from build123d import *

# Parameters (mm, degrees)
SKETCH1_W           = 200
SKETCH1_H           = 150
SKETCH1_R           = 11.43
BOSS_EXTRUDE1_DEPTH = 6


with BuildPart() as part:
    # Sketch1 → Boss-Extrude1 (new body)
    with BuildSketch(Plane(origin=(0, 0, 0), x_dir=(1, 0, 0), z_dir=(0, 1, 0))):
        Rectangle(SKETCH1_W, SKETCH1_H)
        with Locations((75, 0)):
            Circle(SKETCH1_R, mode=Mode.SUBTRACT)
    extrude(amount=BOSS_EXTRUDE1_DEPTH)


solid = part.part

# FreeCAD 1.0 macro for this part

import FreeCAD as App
import Part
import Sketcher

V = App.Vector
Q = App.Units.Quantity


def add_polygon(sketch, points):
    """Adds a closed chain of lines whose ends are joined by coincident constraints."""
    first, n = sketch.GeometryCount, len(points)
    for a, b in zip(points, points[1:] + points[:1]):
        sketch.addGeometry(Part.LineSegment(App.Vector(*a, 0), App.Vector(*b, 0)), False)
    for i in range(n):
        sketch.addConstraint(Sketcher.Constraint("Coincident", first + i, 2, first + (i + 1) % n, 1))

doc = App.newDocument("Part")
body = doc.addObject("PartDesign::Body", "Body")

# Sketch on XZ plane
sketch1 = body.newObject("Sketcher::SketchObject", "Sketch")
sketch1.AttachmentSupport = (doc.getObject("XZ_Plane"), [""])
sketch1.MapMode = "FlatFace"
add_polygon(sketch1, [(-100, -75), (-100, 75), (100, 75), (100, -75)])  # lines 0-3
sketch1.addGeometry(Part.Circle(V(75, 0, 0), V(0, 0, 1), 11), False)  # 4
sketch1.addConstraint([
    Sketcher.Constraint("Vertical", 0),
    Sketcher.Constraint("Horizontal", 1),
    Sketcher.Constraint("Vertical", 2),
    Sketcher.Constraint("Horizontal", 3),
    Sketcher.Constraint("Symmetric", 0, 2, 2, 2, -1, 1),
    Sketcher.Constraint("PointOnObject", 4, 3, -1),
    Sketcher.Constraint("Diameter", 4, Q("22.86 mm")),
    Sketcher.Constraint("DistanceX", 1, 1, 1, 2, Q("200 mm")),
    Sketcher.Constraint("DistanceY", 0, 1, 0, 2, Q("150 mm")),
    Sketcher.Constraint("DistanceX", -1, 1, 4, 3, Q("75 mm")),
])
pad1 = body.newObject("PartDesign::Pad", "Pad")
pad1.Profile = sketch1
pad1.Length = 6
pad1.Reversed = True

doc.recompute()
